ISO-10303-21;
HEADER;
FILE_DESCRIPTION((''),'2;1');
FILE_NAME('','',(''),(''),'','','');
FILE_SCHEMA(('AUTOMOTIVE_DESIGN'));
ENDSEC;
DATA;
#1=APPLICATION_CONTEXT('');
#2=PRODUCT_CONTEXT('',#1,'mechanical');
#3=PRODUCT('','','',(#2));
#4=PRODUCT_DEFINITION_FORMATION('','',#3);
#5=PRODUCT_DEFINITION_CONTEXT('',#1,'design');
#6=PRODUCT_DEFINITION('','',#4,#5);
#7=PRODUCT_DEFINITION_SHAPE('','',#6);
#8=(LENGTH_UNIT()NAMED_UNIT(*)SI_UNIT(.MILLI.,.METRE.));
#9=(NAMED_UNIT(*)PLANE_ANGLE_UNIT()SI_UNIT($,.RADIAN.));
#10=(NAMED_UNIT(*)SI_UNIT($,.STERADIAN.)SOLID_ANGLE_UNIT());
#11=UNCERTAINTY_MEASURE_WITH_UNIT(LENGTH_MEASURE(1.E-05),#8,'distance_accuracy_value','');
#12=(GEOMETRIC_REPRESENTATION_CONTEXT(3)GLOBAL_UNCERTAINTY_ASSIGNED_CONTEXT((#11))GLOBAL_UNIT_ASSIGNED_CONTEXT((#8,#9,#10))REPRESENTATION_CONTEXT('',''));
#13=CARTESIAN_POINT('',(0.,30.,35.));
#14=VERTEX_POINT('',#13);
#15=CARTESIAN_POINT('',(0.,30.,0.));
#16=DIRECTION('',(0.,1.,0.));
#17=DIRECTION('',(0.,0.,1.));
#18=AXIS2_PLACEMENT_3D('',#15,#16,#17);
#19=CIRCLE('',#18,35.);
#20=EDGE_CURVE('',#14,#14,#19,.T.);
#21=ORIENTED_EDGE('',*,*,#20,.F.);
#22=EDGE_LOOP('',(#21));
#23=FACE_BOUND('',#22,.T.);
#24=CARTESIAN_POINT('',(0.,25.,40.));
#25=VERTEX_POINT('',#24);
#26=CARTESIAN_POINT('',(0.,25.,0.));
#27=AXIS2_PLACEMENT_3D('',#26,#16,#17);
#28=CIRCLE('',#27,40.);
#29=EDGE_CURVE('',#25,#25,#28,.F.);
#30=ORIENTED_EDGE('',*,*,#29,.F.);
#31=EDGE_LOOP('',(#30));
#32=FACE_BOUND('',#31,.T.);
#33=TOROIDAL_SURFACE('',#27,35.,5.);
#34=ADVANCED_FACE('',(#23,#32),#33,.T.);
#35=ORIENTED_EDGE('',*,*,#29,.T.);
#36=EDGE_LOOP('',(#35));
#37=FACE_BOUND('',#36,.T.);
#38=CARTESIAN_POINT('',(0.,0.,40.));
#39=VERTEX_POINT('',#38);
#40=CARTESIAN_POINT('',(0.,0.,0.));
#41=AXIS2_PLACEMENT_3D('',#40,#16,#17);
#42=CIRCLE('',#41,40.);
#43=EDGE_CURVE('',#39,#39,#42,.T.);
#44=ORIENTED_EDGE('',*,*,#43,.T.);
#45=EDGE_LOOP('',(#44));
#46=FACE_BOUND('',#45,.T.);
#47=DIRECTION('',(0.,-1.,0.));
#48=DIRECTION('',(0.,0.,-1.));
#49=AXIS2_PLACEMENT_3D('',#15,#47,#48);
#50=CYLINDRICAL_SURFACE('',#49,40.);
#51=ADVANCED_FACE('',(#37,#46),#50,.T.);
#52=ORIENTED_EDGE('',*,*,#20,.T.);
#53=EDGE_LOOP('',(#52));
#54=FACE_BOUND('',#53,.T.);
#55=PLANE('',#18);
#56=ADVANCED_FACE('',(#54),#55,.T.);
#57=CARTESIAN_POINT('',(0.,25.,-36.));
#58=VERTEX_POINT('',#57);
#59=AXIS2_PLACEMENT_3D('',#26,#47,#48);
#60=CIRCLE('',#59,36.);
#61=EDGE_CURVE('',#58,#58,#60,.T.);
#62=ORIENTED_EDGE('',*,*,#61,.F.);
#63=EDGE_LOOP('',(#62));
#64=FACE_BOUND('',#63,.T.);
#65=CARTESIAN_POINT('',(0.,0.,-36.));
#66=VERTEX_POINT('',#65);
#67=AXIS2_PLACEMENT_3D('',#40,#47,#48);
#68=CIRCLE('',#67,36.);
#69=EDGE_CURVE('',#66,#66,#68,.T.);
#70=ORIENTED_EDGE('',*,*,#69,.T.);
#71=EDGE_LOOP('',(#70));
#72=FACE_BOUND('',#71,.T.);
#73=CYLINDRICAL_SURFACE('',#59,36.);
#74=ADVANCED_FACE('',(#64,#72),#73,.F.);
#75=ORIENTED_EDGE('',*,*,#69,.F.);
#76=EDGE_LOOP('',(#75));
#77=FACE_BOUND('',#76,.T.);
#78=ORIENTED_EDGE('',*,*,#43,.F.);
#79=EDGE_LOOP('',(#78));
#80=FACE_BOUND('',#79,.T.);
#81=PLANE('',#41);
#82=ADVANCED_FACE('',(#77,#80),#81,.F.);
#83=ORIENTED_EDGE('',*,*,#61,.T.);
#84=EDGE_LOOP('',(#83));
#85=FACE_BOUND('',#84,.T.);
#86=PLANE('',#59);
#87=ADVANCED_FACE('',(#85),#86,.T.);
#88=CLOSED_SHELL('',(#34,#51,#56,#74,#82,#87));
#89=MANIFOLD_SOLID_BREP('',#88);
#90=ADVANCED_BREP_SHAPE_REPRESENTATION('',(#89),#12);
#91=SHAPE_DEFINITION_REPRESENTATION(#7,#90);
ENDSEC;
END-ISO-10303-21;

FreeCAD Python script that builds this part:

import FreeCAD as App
import Part
import Sketcher
from FreeCAD import Vector
Q = App.Units.Quantity


def edges_at(feature, points):
    """Names of the edges that pass closest to the given points."""
    edges = feature.Shape.Edges
    near = lambda p: min(range(len(edges)), key=lambda i: edges[i].distToShape(Part.Vertex(*p))[0])
    return sorted({f"Edge{near(p) + 1}" for p in points})

doc = App.newDocument("Part")
body = doc.addObject("PartDesign::Body", "Body")

# Sketch on XZ plane
sketch1 = body.newObject("Sketcher::SketchObject", "Sketch")
sketch1.AttachmentSupport = (doc.getObject("XZ_Plane"), [""])
sketch1.MapMode = "FlatFace"
sketch1.addGeometry(Part.Circle(Vector(0, 0, 0), Vector(0, 0, 1), 40), False)
sketch1.addConstraint(Sketcher.Constraint("Coincident", 0, 3, -1, 1))
sketch1.addConstraint(Sketcher.Constraint("Diameter", 0, Q("80 mm")))
pad1 = body.newObject("PartDesign::Pad", "Pad")
pad1.Profile = sketch1
pad1.Length = 30
pad1.Reversed = True
doc.recompute()

fillet = body.newObject("PartDesign::Fillet", "Fillet")
fillet.Base = (pad1, edges_at(pad1, [(0, 30, -40)]))
fillet.Radius = 5

# Sketch on XZ plane
sketch2 = body.newObject("Sketcher::SketchObject", "Sketch001")
sketch2.AttachmentSupport = (doc.getObject("XZ_Plane"), [""])
sketch2.MapMode = "FlatFace"
sketch2.addGeometry(Part.Circle(Vector(0, 0, 0), Vector(0, 0, 1), 36), False)
sketch2.addConstraint(Sketcher.Constraint("Coincident", 0, 3, -1, 1))
sketch2.addConstraint(Sketcher.Constraint("Diameter", 0, Q("72 mm")))
pocket1 = body.newObject("PartDesign::Pocket", "Pocket")
pocket1.Profile = sketch2
pocket1.Length = 25

doc.recompute()
